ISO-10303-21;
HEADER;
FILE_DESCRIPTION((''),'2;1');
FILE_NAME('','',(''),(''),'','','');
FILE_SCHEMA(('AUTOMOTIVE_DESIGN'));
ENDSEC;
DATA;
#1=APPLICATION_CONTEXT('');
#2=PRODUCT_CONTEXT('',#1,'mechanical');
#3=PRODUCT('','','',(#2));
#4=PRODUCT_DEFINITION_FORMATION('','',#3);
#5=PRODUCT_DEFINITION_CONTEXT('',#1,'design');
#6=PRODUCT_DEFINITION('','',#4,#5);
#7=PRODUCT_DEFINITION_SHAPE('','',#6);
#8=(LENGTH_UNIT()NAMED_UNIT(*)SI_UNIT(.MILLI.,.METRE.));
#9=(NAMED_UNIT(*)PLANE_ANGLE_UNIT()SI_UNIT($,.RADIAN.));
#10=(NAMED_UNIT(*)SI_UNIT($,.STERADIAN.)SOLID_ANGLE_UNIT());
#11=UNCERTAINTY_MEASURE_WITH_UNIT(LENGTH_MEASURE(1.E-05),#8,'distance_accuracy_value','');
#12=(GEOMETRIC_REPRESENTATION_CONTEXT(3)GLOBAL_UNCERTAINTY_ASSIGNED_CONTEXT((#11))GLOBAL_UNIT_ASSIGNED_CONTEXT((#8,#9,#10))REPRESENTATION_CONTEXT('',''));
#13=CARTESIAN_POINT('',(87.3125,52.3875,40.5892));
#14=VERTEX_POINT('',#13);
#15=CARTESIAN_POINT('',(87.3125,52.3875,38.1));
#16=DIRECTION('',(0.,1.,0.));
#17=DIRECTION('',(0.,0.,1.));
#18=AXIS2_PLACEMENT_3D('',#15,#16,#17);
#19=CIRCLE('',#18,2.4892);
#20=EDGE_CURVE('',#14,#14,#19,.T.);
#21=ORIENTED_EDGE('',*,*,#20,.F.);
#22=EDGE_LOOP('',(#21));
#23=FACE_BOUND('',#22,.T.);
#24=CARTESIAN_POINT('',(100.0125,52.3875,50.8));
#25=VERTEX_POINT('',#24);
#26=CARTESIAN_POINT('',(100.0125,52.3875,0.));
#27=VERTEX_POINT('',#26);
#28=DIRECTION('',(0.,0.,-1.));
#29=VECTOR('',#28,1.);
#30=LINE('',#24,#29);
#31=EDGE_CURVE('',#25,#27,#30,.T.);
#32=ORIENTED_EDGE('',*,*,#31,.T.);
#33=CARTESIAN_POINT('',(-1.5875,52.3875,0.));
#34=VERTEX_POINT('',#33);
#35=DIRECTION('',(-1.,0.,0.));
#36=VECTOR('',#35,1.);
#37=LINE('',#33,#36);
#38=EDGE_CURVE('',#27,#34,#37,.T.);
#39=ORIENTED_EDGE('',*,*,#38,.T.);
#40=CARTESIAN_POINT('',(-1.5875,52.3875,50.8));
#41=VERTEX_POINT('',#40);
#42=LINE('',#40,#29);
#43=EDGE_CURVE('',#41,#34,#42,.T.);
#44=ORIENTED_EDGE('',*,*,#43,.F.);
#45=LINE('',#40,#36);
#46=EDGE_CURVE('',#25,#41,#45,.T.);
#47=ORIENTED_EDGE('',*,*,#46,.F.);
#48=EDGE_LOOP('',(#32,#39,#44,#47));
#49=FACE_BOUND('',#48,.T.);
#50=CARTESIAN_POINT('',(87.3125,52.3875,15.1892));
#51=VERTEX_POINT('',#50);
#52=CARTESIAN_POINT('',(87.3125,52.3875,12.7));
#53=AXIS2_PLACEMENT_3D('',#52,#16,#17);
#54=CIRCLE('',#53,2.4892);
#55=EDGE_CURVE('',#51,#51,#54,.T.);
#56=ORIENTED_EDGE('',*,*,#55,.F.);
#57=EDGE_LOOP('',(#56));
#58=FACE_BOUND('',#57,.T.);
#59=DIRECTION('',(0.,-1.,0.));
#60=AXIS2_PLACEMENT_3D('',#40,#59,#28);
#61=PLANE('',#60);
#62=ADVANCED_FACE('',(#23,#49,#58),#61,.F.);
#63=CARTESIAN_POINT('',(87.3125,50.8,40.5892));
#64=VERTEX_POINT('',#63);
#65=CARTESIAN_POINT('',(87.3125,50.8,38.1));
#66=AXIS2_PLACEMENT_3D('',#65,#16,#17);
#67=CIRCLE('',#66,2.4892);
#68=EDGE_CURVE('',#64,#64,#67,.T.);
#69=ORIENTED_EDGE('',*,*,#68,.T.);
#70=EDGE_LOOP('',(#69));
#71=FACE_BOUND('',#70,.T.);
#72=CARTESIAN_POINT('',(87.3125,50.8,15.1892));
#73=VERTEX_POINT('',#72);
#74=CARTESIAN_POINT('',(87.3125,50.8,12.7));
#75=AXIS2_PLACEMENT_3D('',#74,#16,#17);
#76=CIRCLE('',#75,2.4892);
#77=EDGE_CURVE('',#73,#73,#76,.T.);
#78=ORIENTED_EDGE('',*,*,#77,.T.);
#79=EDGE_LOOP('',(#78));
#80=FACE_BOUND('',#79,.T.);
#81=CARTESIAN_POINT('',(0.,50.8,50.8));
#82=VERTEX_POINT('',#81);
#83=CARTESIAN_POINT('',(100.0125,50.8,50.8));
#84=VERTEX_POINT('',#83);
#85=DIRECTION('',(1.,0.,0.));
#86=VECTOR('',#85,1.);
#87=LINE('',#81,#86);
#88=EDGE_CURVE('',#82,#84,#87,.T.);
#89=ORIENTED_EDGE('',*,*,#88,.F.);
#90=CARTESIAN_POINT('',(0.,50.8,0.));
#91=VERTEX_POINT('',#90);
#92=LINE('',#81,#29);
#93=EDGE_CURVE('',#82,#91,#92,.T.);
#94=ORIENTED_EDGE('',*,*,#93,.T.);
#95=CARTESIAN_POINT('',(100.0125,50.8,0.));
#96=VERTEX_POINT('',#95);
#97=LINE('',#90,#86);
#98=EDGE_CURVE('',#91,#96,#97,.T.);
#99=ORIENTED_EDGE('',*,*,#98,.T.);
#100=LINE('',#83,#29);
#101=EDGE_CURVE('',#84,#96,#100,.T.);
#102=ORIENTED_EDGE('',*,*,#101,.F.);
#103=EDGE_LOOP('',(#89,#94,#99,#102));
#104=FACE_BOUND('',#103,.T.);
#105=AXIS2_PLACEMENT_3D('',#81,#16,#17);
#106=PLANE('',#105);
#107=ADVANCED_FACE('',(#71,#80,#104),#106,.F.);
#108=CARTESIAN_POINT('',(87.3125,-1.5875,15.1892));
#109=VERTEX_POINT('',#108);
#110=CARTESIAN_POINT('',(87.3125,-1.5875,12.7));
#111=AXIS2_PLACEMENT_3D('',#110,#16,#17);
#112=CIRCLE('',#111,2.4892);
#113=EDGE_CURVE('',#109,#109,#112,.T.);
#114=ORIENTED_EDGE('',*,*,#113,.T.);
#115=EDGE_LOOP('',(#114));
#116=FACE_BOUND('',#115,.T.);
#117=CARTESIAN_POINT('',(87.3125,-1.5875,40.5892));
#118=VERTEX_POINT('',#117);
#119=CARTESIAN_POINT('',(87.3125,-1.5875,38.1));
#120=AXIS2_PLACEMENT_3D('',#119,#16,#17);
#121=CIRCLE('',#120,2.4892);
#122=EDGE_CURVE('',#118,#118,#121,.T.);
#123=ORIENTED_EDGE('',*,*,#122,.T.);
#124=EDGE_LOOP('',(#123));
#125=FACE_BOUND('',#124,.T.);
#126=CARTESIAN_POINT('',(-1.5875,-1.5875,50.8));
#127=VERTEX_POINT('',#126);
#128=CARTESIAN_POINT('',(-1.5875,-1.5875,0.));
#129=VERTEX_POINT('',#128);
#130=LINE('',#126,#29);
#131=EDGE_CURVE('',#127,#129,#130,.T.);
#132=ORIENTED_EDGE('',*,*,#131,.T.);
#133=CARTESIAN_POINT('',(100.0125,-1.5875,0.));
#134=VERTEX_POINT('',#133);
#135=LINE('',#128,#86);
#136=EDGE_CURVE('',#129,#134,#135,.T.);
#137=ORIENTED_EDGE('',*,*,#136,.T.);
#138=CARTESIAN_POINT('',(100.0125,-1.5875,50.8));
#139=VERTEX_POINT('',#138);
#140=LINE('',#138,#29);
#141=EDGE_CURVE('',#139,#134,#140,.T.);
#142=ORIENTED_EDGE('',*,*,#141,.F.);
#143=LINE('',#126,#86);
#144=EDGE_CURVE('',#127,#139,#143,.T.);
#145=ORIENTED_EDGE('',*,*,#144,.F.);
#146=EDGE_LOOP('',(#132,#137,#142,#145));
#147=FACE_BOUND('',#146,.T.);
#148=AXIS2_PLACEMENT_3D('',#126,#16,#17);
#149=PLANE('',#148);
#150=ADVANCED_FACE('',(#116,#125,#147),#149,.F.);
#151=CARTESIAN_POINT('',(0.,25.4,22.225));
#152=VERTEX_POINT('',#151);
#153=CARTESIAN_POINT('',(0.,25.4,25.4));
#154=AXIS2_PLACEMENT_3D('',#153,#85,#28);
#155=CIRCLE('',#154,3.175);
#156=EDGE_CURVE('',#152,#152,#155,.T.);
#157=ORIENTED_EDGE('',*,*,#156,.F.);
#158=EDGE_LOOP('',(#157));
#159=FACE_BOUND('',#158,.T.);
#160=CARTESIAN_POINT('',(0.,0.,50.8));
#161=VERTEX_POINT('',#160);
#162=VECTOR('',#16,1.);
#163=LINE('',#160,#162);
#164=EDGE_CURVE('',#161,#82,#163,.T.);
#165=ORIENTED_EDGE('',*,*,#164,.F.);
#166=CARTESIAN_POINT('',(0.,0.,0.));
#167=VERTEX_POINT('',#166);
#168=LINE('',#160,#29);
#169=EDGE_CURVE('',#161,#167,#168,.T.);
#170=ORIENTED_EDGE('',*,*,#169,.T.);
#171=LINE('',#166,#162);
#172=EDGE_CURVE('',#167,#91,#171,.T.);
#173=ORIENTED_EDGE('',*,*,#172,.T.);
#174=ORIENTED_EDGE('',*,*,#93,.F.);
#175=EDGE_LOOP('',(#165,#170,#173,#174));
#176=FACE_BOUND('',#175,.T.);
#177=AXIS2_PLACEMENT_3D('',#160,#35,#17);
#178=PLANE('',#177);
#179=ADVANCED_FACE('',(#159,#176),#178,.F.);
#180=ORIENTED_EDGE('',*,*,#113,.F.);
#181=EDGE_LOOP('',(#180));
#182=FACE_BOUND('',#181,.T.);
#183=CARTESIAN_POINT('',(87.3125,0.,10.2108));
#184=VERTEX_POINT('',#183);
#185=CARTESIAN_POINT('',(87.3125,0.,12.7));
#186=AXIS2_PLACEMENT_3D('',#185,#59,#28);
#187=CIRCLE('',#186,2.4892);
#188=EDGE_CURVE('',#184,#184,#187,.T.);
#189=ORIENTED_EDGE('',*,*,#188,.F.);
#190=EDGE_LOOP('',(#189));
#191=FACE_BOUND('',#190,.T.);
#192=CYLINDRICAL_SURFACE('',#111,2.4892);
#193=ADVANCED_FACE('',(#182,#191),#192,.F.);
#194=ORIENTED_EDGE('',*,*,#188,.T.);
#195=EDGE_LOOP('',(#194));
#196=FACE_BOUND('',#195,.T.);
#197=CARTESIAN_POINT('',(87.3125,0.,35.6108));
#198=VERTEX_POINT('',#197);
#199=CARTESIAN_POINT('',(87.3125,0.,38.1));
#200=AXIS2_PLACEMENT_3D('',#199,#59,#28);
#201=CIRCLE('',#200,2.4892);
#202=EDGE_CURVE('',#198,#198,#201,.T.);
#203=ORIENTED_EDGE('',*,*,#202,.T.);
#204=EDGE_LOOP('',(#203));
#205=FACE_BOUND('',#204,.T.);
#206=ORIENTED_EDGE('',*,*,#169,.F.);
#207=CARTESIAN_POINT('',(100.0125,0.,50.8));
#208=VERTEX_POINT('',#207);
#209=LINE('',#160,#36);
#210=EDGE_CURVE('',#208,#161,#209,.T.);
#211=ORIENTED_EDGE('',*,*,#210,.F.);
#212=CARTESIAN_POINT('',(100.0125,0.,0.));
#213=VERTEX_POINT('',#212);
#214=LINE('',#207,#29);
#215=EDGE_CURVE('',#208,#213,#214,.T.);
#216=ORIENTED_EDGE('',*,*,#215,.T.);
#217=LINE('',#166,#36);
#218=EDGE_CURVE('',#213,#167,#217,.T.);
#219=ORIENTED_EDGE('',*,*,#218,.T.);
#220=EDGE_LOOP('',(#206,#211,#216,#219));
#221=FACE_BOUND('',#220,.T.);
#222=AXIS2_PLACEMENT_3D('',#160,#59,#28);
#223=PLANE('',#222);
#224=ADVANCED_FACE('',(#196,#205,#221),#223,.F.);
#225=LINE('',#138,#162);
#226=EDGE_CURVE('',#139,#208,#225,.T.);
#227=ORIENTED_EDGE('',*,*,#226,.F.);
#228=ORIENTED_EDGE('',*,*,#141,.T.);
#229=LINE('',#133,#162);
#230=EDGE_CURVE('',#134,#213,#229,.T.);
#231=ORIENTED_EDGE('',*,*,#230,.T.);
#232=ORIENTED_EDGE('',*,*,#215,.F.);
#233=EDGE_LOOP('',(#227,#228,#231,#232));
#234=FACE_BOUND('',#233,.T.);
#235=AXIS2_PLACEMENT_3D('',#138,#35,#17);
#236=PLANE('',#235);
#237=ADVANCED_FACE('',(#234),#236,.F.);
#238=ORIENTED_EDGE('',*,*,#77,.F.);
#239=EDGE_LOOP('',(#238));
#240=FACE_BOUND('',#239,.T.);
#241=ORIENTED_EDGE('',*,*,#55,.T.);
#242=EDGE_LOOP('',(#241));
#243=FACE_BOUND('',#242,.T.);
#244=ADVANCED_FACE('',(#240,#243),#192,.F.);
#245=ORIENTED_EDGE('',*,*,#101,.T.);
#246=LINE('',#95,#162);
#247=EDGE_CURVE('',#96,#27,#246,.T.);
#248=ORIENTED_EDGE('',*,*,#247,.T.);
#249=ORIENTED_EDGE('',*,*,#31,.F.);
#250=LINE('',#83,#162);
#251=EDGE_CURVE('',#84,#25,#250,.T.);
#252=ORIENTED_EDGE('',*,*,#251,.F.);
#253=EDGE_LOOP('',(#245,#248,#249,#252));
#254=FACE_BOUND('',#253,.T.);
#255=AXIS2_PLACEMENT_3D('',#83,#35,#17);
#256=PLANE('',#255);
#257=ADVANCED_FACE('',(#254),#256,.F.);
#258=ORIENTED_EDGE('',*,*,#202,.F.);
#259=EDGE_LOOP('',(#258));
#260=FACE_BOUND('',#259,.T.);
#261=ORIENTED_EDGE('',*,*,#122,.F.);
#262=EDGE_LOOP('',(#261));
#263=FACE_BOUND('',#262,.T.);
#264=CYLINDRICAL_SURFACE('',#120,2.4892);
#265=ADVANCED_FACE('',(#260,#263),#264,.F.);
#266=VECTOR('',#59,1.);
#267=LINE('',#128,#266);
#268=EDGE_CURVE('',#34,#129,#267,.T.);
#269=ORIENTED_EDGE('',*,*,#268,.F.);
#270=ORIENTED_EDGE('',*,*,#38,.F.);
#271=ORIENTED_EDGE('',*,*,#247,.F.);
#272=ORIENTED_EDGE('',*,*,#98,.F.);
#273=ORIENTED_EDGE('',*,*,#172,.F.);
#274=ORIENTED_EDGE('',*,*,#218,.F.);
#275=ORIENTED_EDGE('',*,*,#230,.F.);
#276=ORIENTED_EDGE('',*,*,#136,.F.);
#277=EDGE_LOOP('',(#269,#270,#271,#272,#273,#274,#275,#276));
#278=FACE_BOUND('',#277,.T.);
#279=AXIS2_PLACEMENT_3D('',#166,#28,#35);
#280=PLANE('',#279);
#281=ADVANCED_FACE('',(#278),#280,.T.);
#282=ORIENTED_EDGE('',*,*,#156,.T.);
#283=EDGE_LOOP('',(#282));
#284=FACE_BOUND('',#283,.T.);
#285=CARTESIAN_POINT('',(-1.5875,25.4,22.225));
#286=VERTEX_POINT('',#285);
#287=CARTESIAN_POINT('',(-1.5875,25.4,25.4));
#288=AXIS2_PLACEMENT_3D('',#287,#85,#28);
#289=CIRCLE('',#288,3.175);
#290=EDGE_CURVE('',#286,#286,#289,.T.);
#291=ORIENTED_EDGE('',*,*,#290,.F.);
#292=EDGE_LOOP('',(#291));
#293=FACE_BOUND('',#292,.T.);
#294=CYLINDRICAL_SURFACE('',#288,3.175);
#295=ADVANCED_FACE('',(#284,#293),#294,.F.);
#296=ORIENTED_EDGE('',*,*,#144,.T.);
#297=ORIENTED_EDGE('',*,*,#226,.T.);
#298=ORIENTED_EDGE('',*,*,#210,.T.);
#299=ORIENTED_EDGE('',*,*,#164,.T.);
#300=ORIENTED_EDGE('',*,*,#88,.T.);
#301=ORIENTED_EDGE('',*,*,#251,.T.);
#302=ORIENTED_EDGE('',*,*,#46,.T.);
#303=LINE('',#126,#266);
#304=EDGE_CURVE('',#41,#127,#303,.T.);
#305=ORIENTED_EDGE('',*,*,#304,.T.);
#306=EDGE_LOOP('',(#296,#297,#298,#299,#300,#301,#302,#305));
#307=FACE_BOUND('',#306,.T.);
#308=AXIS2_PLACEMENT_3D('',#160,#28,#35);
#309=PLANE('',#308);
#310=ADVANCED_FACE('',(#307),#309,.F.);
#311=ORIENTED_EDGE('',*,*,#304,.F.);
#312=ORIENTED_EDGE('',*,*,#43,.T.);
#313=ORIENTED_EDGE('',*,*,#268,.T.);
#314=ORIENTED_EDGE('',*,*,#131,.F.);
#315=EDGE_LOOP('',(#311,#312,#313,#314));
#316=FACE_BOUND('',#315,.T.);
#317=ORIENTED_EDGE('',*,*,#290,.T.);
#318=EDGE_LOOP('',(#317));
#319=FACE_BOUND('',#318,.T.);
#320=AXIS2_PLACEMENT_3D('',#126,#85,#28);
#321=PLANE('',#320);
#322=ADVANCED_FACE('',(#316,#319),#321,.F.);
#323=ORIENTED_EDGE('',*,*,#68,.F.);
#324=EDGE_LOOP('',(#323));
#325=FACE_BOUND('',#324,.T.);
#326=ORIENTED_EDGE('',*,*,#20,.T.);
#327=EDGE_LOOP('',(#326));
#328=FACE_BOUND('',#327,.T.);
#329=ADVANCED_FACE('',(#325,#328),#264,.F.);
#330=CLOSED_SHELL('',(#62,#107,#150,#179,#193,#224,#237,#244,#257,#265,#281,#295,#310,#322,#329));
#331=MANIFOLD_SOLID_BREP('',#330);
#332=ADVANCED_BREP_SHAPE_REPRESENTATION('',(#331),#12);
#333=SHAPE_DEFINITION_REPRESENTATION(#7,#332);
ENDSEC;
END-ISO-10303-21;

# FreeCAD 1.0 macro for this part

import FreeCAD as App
import Part
import Sketcher
Q = App.Units.Quantity


def add_polygon(sketch, points):
    """Adds a closed chain of lines whose ends are joined by coincident constraints."""
    first, n = sketch.GeometryCount, len(points)
    for a, b in zip(points, points[1:] + points[:1]):
        sketch.addGeometry(Part.LineSegment(App.Vector(*a, 0), App.Vector(*b, 0)), False)
    for i in range(n):
        sketch.addConstraint(Sketcher.Constraint("Coincident", first + i, 2, first + (i + 1) % n, 1))

doc = App.newDocument("Part")
body = doc.addObject("PartDesign::Body", "Body")

sketch1 = body.newObject("Sketcher::SketchObject", "Sketch")
sketch1.AttachmentSupport = (doc.getObject("XY_Plane"), [""])
sketch1.MapMode = "FlatFace"
add_polygon(sketch1, [(-1.5875, -1.5875), (100.0125, -1.5875), (100.0125, 0), (0, 0), (0, 50.8), (100.0125, 50.8), (100.0125, 52.3875), (-1.5875, 52.3875)])
sketch1.addConstraint([
    Sketcher.Constraint("Horizontal", 0),
    Sketcher.Constraint("Vertical", 1),
    Sketcher.Constraint("Horizontal", 2),
    Sketcher.Constraint("Vertical", 3),
    Sketcher.Constraint("Horizontal", 4),
    Sketcher.Constraint("Vertical", 5),
    Sketcher.Constraint("Horizontal", 6),
    Sketcher.Constraint("Vertical", 7),
    Sketcher.Constraint("Coincident", 2, 2, -1, 1),
    Sketcher.Constraint("Vertical", 1, 2, 4, 2),
    Sketcher.Constraint("Equal", 1, 5),
    Sketcher.Constraint("DistanceX", 0, 1, 0, 2, Q("4 in")),
    Sketcher.Constraint("DistanceY", 3, 1, 3, 2, Q("2 in")),
    Sketcher.Constraint("DistanceX", 2, 2, 2, 1, Q("3.9375 in")),
    Sketcher.Constraint("DistanceY", 1, 1, 1, 2, Q("0.0625 in")),
])
pad1 = body.newObject("PartDesign::Pad", "Pad")
pad1.Profile = sketch1
pad1.Length = Q("2 in")

sketch2 = body.newObject("Sketcher::SketchObject", "Sketch001")
sketch2.AttachmentSupport = (doc.getObject("XZ_Plane"), [""])
sketch2.MapMode = "FlatFace"
sketch2.AttachmentOffset = App.Placement(App.Vector(0, 0, -2.0625 * 25.4), App.Rotation())
sketch2.addGeometry([
    Part.Circle(App.Vector(87.3125, 38.1, 0), App.Vector(0, 0, 1), 2.4892),
    Part.Circle(App.Vector(87.3125, 12.7, 0), App.Vector(0, 0, 1), 2.4892),
], False)
sketch2.addConstraint([
    Sketcher.Constraint("Equal", 0, 1),
    Sketcher.Constraint("Vertical", 0, 3, 1, 3),
    Sketcher.Constraint("Diameter", 0, Q("0.196 in")),
    Sketcher.Constraint("DistanceY", 1, 3, 0, 3, Q("1 in")),
    Sketcher.Constraint("DistanceY", -1, 1, 0, 3, Q("1.5 in")),
    Sketcher.Constraint("DistanceX", -1, 1, 0, 3, Q("3.4375 in")),
])
pocket1 = body.newObject("PartDesign::Pocket", "Pocket")
pocket1.Profile = sketch2
pocket1.Type = "ThroughAll"
pocket1.Reversed = True

sketch3 = body.newObject("Sketcher::SketchObject", "Sketch002")
sketch3.AttachmentSupport = (doc.getObject("YZ_Plane"), [""])
sketch3.MapMode = "FlatFace"
sketch3.addGeometry(Part.Circle(App.Vector(25.4, 25.4, 0), App.Vector(0, 0, 1), 3.175), False)
sketch3.addConstraint([
    Sketcher.Constraint("Diameter", 0, Q("0.25 in")),
    Sketcher.Constraint("DistanceX", -1, 1, 0, 3, Q("1 in")),
    Sketcher.Constraint("DistanceY", -1, 1, 0, 3, Q("1 in")),
])
pocket2 = body.newObject("PartDesign::Pocket", "Pocket001")
pocket2.Profile = sketch3
pocket2.Type = "ThroughAll"

doc.recompute()
